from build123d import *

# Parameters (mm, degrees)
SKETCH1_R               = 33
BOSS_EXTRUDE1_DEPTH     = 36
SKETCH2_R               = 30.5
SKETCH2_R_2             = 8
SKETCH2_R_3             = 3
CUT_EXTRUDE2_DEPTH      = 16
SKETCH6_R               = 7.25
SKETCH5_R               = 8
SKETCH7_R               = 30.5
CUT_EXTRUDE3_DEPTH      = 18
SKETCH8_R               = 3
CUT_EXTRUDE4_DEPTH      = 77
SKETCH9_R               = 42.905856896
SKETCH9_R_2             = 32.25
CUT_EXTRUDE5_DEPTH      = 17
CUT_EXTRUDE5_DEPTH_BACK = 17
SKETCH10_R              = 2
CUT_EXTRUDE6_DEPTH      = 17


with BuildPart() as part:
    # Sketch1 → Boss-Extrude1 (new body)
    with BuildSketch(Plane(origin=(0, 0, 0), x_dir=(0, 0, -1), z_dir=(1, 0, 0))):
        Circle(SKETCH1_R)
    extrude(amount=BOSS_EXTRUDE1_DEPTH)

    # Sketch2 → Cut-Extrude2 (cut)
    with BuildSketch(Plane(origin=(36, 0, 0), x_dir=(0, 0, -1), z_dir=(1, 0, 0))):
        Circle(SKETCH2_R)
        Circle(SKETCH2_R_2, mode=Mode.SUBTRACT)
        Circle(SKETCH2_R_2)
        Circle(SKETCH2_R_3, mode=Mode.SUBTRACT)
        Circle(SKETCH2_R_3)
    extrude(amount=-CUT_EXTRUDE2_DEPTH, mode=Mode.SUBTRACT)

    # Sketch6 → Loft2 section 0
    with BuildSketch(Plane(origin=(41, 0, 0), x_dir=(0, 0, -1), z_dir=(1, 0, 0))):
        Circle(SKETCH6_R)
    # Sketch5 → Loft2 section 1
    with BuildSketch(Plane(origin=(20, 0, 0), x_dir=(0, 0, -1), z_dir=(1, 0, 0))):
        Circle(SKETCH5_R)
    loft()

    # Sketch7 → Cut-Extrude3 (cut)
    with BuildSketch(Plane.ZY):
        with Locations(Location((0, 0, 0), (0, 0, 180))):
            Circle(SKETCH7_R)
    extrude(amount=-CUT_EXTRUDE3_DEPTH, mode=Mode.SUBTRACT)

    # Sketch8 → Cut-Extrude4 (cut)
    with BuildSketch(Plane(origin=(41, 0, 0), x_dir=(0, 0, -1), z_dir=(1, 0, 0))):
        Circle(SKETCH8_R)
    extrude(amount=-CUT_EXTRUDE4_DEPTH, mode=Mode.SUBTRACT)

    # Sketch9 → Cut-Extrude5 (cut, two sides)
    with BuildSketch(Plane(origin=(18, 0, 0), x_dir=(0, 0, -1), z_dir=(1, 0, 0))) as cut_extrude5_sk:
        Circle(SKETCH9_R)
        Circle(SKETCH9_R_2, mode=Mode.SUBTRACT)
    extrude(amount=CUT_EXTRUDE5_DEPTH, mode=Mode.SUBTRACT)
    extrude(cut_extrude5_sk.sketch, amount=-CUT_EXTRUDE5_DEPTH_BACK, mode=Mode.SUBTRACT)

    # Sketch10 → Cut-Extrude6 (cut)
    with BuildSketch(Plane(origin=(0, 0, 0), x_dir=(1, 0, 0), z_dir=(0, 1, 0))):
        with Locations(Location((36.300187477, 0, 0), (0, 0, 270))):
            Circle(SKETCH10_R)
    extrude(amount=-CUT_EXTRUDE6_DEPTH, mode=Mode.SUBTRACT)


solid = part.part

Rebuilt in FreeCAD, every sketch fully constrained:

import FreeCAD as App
import Part
import Sketcher
Q = App.Units.Quantity

doc = App.newDocument("Part")
body = doc.addObject("PartDesign::Body", "Body")

# Sketch on YZ plane
sketch1 = body.newObject("Sketcher::SketchObject", "Sketch")
sketch1.AttachmentSupport = (doc.getObject("YZ_Plane"), [""])
sketch1.MapMode = "FlatFace"
sketch1.addGeometry(Part.Circle(App.Vector(0, 0, 0), App.Vector(0, 0, 1), 33), False)
sketch1.addConstraint([
    Sketcher.Constraint("Coincident", 0, 3, -1, 1),
    Sketcher.Constraint("Diameter", 0, Q("66 mm")),
])
pad1 = body.newObject("PartDesign::Pad", "Pad")
pad1.Profile = sketch1
pad1.Length = 36

# Sketch on YZ plane
sketch2 = body.newObject("Sketcher::SketchObject", "Sketch001")
sketch2.AttachmentSupport = (doc.getObject("YZ_Plane"), [""])
sketch2.MapMode = "FlatFace"
sketch2.AttachmentOffset = App.Placement(App.Vector(0, 0, 36), App.Rotation())
sketch2.addGeometry(Part.Circle(App.Vector(0, 0, 0), App.Vector(0, 0, 1), 30), False)
sketch2.addConstraint([
    Sketcher.Constraint("Coincident", 0, 3, -1, 1),
    Sketcher.Constraint("Diameter", 0, Q("61 mm")),
])
pocket1 = body.newObject("PartDesign::Pocket", "Pocket")
pocket1.Profile = sketch2
pocket1.Length = 16

# Sketch on YZ plane
sketch3 = body.newObject("Sketcher::SketchObject", "Sketch002")
sketch3.AttachmentSupport = (doc.getObject("YZ_Plane"), [""])
sketch3.MapMode = "FlatFace"
sketch3.AttachmentOffset = App.Placement(App.Vector(0, 0, 41), App.Rotation())
sketch3.addGeometry(Part.Circle(App.Vector(0, 0, 0), App.Vector(0, 0, 1), 7), False)
sketch3.addConstraint([
    Sketcher.Constraint("Coincident", 0, 3, -1, 1),
    Sketcher.Constraint("Diameter", 0, Q("14.5 mm")),
])

# Sketch on YZ plane
sketch4 = body.newObject("Sketcher::SketchObject", "Sketch003")
sketch4.AttachmentSupport = (doc.getObject("YZ_Plane"), [""])
sketch4.MapMode = "FlatFace"
sketch4.AttachmentOffset = App.Placement(App.Vector(0, 0, 20), App.Rotation())
sketch4.addGeometry(Part.Circle(App.Vector(0, 0, 0), App.Vector(0, 0, 1), 8), False)
sketch4.addConstraint([
    Sketcher.Constraint("Coincident", 0, 3, -1, 1),
    Sketcher.Constraint("Diameter", 0, Q("16 mm")),
])

additiveloft = body.newObject("PartDesign::AdditiveLoft", "AdditiveLoft")
additiveloft.Profile = sketch3
additiveloft.Sections = [sketch4]

# Sketch on YZ plane
sketch5 = body.newObject("Sketcher::SketchObject", "Sketch004")
sketch5.AttachmentSupport = (doc.getObject("YZ_Plane"), [""])
sketch5.MapMode = "FlatFace"
sketch5.addGeometry(Part.Circle(App.Vector(0, 0, 0), App.Vector(0, 0, 1), 30), False)
sketch5.addConstraint([
    Sketcher.Constraint("Coincident", 0, 3, -1, 1),
    Sketcher.Constraint("Diameter", 0, Q("61 mm")),
])
pocket2 = body.newObject("PartDesign::Pocket", "Pocket001")
pocket2.Profile = sketch5
pocket2.Length = 18
pocket2.Reversed = True

# Sketch on YZ plane
sketch6 = body.newObject("Sketcher::SketchObject", "Sketch005")
sketch6.AttachmentSupport = (doc.getObject("YZ_Plane"), [""])
sketch6.MapMode = "FlatFace"
sketch6.AttachmentOffset = App.Placement(App.Vector(0, 0, 41), App.Rotation())
sketch6.addGeometry(Part.Circle(App.Vector(0, 0, 0), App.Vector(0, 0, 1), 3), False)
sketch6.addConstraint([
    Sketcher.Constraint("Coincident", 0, 3, -1, 1),
    Sketcher.Constraint("Diameter", 0, Q("6 mm")),
])
pocket3 = body.newObject("PartDesign::Pocket", "Pocket002")
pocket3.Profile = sketch6
pocket3.Length = 77

# Sketch on YZ plane
sketch7 = body.newObject("Sketcher::SketchObject", "Sketch006")
sketch7.AttachmentSupport = (doc.getObject("YZ_Plane"), [""])
sketch7.MapMode = "FlatFace"
sketch7.AttachmentOffset = App.Placement(App.Vector(0, 0, 18), App.Rotation())
sketch7.addGeometry([
    Part.Circle(App.Vector(0, 0, 0), App.Vector(0, 0, 1), 43),
    Part.Circle(App.Vector(0, 0, 0), App.Vector(0, 0, 1), 32),
], False)
sketch7.addConstraint([
    Sketcher.Constraint("Coincident", 0, 3, -1, 1),
    Sketcher.Constraint("Coincident", 1, 3, -1, 1),
    Sketcher.Constraint("Diameter", 1, Q("64.5 mm")),
    Sketcher.Constraint("Diameter", 0, Q("85.811714 mm")),
])
pocket4 = body.newObject("PartDesign::Pocket", "Pocket003")
pocket4.Profile = sketch7
pocket4.Type = "TwoLengths"
pocket4.Length = 17
pocket4.Length2 = 17
pocket4.Reversed = True

# Sketch on XZ plane
sketch8 = body.newObject("Sketcher::SketchObject", "Sketch007")
sketch8.AttachmentSupport = (doc.getObject("XZ_Plane"), [""])
sketch8.MapMode = "FlatFace"
sketch8.addGeometry(Part.Circle(App.Vector(36.3, 0, 0), App.Vector(0, 0, 1), 2), False)
sketch8.addConstraint([
    Sketcher.Constraint("PointOnObject", 0, 3, -1),
    Sketcher.Constraint("Diameter", 0, Q("4 mm")),
    Sketcher.Constraint("DistanceX", -1, 1, 0, 3, Q("36.300187 mm")),
])
pocket5 = body.newObject("PartDesign::Pocket", "Pocket004")
pocket5.Profile = sketch8
pocket5.Length = 17
pocket5.Reversed = True

doc.recompute()
